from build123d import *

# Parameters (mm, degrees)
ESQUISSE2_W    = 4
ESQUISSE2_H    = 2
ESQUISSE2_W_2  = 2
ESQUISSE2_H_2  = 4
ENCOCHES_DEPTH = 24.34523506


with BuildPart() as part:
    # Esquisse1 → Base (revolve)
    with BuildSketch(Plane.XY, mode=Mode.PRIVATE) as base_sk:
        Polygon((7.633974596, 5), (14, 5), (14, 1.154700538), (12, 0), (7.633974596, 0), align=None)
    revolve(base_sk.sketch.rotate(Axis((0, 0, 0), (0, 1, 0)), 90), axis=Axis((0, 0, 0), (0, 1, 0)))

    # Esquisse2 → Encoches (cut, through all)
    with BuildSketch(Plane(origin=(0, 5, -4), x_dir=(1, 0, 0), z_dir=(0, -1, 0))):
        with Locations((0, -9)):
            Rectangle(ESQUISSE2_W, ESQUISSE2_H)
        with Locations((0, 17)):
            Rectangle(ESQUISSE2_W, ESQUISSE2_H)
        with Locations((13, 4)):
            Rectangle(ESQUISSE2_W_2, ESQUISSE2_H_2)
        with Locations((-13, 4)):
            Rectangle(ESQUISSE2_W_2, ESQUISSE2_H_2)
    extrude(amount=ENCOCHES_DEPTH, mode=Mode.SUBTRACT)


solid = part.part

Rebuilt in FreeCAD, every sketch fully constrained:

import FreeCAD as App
import Part
import Sketcher

V = App.Vector
Q = App.Units.Quantity

doc = App.newDocument("Part")
body = doc.addObject("PartDesign::Body", "Body")

# Sketch on XY plane
sketch1 = doc.addObject("Sketcher::SketchObject", "Sketch")
body.addObject(sketch1)
sketch1.AttachmentSupport = (doc.XY_Plane, [""])
sketch1.MapMode = "FlatFace"
sketch1.addGeometry([
    Part.LineSegment(V(14, 5, 0), V(7.6, 5, 0)),  # 0
    Part.LineSegment(V(7.6, 5, 0), V(7.6, 0, 0)),  # 1
    Part.LineSegment(V(7.6, 0, 0), V(12, 0, 0)),  # 2
    Part.LineSegment(V(12, 0, 0), V(14, 1.2, 0)),  # 3
    Part.LineSegment(V(14, 1.2, 0), V(14, 5, 0)),  # 4
], False)
sketch1.addConstraint([
    Sketcher.Constraint("Coincident", 0, 2, 1, 1),
    Sketcher.Constraint("Coincident", 1, 2, 2, 1),
    Sketcher.Constraint("Coincident", 2, 2, 3, 1),
    Sketcher.Constraint("Coincident", 3, 2, 4, 1),
    Sketcher.Constraint("Coincident", 4, 2, 0, 1),
    Sketcher.Constraint("Horizontal", 0),
    Sketcher.Constraint("Vertical", 1),
    Sketcher.Constraint("Horizontal", 2),
    Sketcher.Constraint("Vertical", 4),
    Sketcher.Constraint("PointOnObject", 1, 2, -1),
    Sketcher.Constraint("DistanceY", 1, 2, 1, 1, Q("5 mm")),
    Sketcher.Constraint("Angle", 3, Q("30 deg")),
    Sketcher.Constraint("DistanceX", -1, 1, 2, 2, Q("12 mm")),
    Sketcher.Constraint("DistanceX", -1, 1, 3, 2, Q("14 mm")),
    Sketcher.Constraint("DistanceX", 0, 2, 0, 1, Q("6.366025 mm")),
])
revolution = doc.addObject("PartDesign::Revolution", "Revolution")
body.addObject(revolution)
revolution.Profile = sketch1
revolution.ReferenceAxis = (sketch1, ["V_Axis"])
revolution.Angle = 360

# Sketch on XZ plane
sketch2 = doc.addObject("Sketcher::SketchObject", "Sketch001")
body.addObject(sketch2)
sketch2.AttachmentSupport = (doc.XZ_Plane, [""])
sketch2.MapMode = "FlatFace"
sketch2.AttachmentOffset = App.Placement(V(0, 0, -5), App.Rotation())
sketch2.addGeometry([
    Part.LineSegment(V(-2, -12, 0), V(-2, -14, 0)),  # 0
    Part.LineSegment(V(-2, -14, 0), V(2, -14, 0)),  # 1
    Part.LineSegment(V(2, -14, 0), V(2, -12, 0)),  # 2
    Part.LineSegment(V(2, -12, 0), V(-2, -12, 0)),  # 3
    Part.LineSegment(V(-2, 14, 0), V(-2, 12, 0)),  # 4
    Part.LineSegment(V(-2, 12, 0), V(2, 12, 0)),  # 5
    Part.LineSegment(V(2, 12, 0), V(2, 14, 0)),  # 6
    Part.LineSegment(V(2, 14, 0), V(-2, 14, 0)),  # 7
    Part.LineSegment(V(12, 2, 0), V(12, -2, 0)),  # 8
    Part.LineSegment(V(12, -2, 0), V(14, -2, 0)),  # 9
    Part.LineSegment(V(14, -2, 0), V(14, 2, 0)),  # 10
    Part.LineSegment(V(14, 2, 0), V(12, 2, 0)),  # 11
    Part.LineSegment(V(-14, 2, 0), V(-14, -2, 0)),  # 12
    Part.LineSegment(V(-14, -2, 0), V(-12, -2, 0)),  # 13
    Part.LineSegment(V(-12, -2, 0), V(-12, 2, 0)),  # 14
    Part.LineSegment(V(-12, 2, 0), V(-14, 2, 0)),  # 15
], False)
sketch2.addConstraint([
    Sketcher.Constraint("Coincident", 0, 2, 1, 1),
    Sketcher.Constraint("Coincident", 1, 2, 2, 1),
    Sketcher.Constraint("Coincident", 2, 2, 3, 1),
    Sketcher.Constraint("Coincident", 3, 2, 0, 1),
    Sketcher.Constraint("Coincident", 4, 2, 5, 1),
    Sketcher.Constraint("Coincident", 5, 2, 6, 1),
    Sketcher.Constraint("Coincident", 6, 2, 7, 1),
    Sketcher.Constraint("Coincident", 7, 2, 4, 1),
    Sketcher.Constraint("Coincident", 8, 2, 9, 1),
    Sketcher.Constraint("Coincident", 9, 2, 10, 1),
    Sketcher.Constraint("Coincident", 10, 2, 11, 1),
    Sketcher.Constraint("Coincident", 11, 2, 8, 1),
    Sketcher.Constraint("Coincident", 12, 2, 13, 1),
    Sketcher.Constraint("Coincident", 13, 2, 14, 1),
    Sketcher.Constraint("Coincident", 14, 2, 15, 1),
    Sketcher.Constraint("Coincident", 15, 2, 12, 1),
    Sketcher.Constraint("Vertical", 0),
    Sketcher.Constraint("Horizontal", 1),
    Sketcher.Constraint("Vertical", 2),
    Sketcher.Constraint("Horizontal", 3),
    Sketcher.Constraint("Vertical", 4),
    Sketcher.Constraint("Horizontal", 5),
    Sketcher.Constraint("Vertical", 6),
    Sketcher.Constraint("Horizontal", 7),
    Sketcher.Constraint("Vertical", 8),
    Sketcher.Constraint("Horizontal", 9),
    Sketcher.Constraint("Vertical", 10),
    Sketcher.Constraint("Horizontal", 11),
    Sketcher.Constraint("Vertical", 12),
    Sketcher.Constraint("Horizontal", 13),
    Sketcher.Constraint("Vertical", 14),
    Sketcher.Constraint("Horizontal", 15),
    Sketcher.Constraint("Symmetric", 2, 2, 4, 2, -1, 1),
    Sketcher.Constraint("Symmetric", 0, 2, 6, 2, -1, 1),
    Sketcher.Constraint("Symmetric", 10, 2, 12, 2, -1, 1),
    Sketcher.Constraint("Symmetric", 8, 2, 14, 2, -1, 1),
    Sketcher.Constraint("Horizontal", 9, 2, 12, 2),
    Sketcher.Constraint("Vertical", 3, 2, 4, 2),
    Sketcher.Constraint("Equal", 15, 0),
    Sketcher.Constraint("Equal", 7, 8),
    Sketcher.Constraint("DistanceX", 1, 1, 1, 2, Q("4 mm")),
    Sketcher.Constraint("DistanceX", 9, 1, 9, 2, Q("2 mm")),
    Sketcher.Constraint("DistanceY", 0, 2, -1, 1, Q("14 mm")),
    Sketcher.Constraint("DistanceX", -1, 1, 8, 2, Q("12 mm")),
])
pocket1 = doc.addObject("PartDesign::Pocket", "Pocket")
body.addObject(pocket1)
pocket1.Profile = sketch2
pocket1.Type = "ThroughAll"
pocket1.Reversed = True

doc.recompute()
